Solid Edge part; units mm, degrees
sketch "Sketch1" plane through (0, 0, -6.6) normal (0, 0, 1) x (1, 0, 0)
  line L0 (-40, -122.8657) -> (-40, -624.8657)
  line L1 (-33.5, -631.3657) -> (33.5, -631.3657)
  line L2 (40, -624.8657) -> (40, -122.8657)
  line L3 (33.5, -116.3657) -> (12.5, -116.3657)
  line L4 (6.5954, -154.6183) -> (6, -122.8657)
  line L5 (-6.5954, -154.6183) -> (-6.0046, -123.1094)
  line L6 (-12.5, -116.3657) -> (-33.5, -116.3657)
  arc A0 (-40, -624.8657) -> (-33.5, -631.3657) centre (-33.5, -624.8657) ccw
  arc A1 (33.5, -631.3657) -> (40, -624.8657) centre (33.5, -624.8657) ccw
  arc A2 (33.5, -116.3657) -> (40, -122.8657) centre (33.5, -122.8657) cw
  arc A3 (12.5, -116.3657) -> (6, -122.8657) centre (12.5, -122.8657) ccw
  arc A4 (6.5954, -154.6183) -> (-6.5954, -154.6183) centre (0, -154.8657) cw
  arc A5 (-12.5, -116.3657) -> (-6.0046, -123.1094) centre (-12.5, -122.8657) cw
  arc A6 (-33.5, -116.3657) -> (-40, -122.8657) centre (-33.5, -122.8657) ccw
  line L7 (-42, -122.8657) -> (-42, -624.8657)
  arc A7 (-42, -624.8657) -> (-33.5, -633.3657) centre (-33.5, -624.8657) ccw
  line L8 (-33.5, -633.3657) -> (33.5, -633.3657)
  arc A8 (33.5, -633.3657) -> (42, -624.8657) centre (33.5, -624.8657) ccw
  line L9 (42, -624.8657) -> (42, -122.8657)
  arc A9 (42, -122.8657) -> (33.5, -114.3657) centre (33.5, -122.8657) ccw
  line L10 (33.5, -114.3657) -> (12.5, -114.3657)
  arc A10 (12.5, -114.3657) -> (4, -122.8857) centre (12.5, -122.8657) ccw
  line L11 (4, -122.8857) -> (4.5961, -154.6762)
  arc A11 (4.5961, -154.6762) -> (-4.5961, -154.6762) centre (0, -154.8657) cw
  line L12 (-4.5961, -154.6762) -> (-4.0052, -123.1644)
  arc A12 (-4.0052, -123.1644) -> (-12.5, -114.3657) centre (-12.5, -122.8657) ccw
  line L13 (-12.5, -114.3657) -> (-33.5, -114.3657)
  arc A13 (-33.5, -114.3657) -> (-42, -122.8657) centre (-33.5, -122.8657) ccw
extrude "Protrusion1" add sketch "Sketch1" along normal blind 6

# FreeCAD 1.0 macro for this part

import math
import FreeCAD as App
import Part
import Sketcher
from FreeCAD import Vector
Q = App.Units.Quantity

doc = App.newDocument("Part")
body = doc.addObject("PartDesign::Body", "Body")

sketch1 = doc.addObject("Sketcher::SketchObject", "Sketch")
body.addObject(sketch1)
sketch1.AttachmentSupport = (doc.XY_Plane, [""])
sketch1.MapMode = "FlatFace"
sketch1.AttachmentOffset = App.Placement(Vector(0, 0, -6.6), App.Rotation())
sketch1.addGeometry([
    Part.ArcOfCircle(Part.Circle(Vector(-33.5, -122.8657, 0), Vector(0, 0, 1), 8.5), math.radians(90), math.radians(180)),
    Part.LineSegment(Vector(-42, -122.8657, 0), Vector(-42, -624.8657, 0)),
    Part.ArcOfCircle(Part.Circle(Vector(-33.5, -624.8657, 0), Vector(0, 0, 1), 8.5), math.radians(180), math.radians(270)),
    Part.LineSegment(Vector(-33.5, -633.3657, 0), Vector(33.5, -633.3657, 0)),
    Part.ArcOfCircle(Part.Circle(Vector(33.5, -624.8657, 0), Vector(0, 0, 1), 8.5), math.radians(-90), math.radians(0)),
    Part.LineSegment(Vector(42, -624.8657, 0), Vector(42, -122.8657, 0)),
    Part.ArcOfCircle(Part.Circle(Vector(33.5, -122.8657, 0), Vector(0, 0, 1), 8.5), math.radians(0), math.radians(90)),
    Part.LineSegment(Vector(33.5, -114.3657, 0), Vector(12.5, -114.3657, 0)),
    Part.ArcOfCircle(Part.Circle(Vector(12.5, -122.8657, 0), Vector(0, 0, 1), 8.5), math.radians(90), math.radians(180.134813)),
    Part.LineSegment(Vector(4, -122.8857, 0), Vector(4.5961, -154.6762, 0)),
    Part.ArcOfCircle(Part.Circle(Vector(0, -154.8657, 0), Vector(0, 0, 1), 4.600005), math.radians(177.638997), math.radians(362.361003)),
    Part.LineSegment(Vector(-4.5961, -154.6762, 0), Vector(-4.0052, -123.1644, 0)),
    Part.ArcOfCircle(Part.Circle(Vector(-12.5, -122.8657, 0), Vector(0, 0, 1), 8.50005), math.radians(-2.013844), math.radians(90)),
    Part.LineSegment(Vector(-12.5, -114.3657, 0), Vector(-33.5, -114.3657, 0)),
    Part.LineSegment(Vector(-40, -624.8657, 0), Vector(-40, -122.8657, 0)),
    Part.ArcOfCircle(Part.Circle(Vector(-33.5, -122.8657, 0), Vector(0, 0, 1), 6.5), math.radians(90), math.radians(180)),
    Part.LineSegment(Vector(-33.5, -116.3657, 0), Vector(-12.5, -116.3657, 0)),
    Part.ArcOfCircle(Part.Circle(Vector(-12.5, -122.8657, 0), Vector(0, 0, 1), 6.5), math.radians(-2.148664), math.radians(90)),
    Part.LineSegment(Vector(-6.0046, -123.1094, 0), Vector(-6.5954, -154.6183, 0)),
    Part.ArcOfCircle(Part.Circle(Vector(0, -154.8657, 0), Vector(0, 0, 1), 6.600038), math.radians(177.851786), math.radians(362.148214)),
    Part.LineSegment(Vector(6.5954, -154.6183, 0), Vector(6, -122.8657, 0)),
    Part.ArcOfCircle(Part.Circle(Vector(12.5, -122.8657, 0), Vector(0, 0, 1), 6.5), math.radians(90), math.radians(180)),
    Part.LineSegment(Vector(12.5, -116.3657, 0), Vector(33.5, -116.3657, 0)),
    Part.ArcOfCircle(Part.Circle(Vector(33.5, -122.8657, 0), Vector(0, 0, 1), 6.5), math.radians(0), math.radians(90)),
    Part.LineSegment(Vector(40, -122.8657, 0), Vector(40, -624.8657, 0)),
    Part.ArcOfCircle(Part.Circle(Vector(33.5, -624.8657, 0), Vector(0, 0, 1), 6.5), math.radians(-90), math.radians(0)),
    Part.LineSegment(Vector(33.5, -631.3657, 0), Vector(-33.5, -631.3657, 0)),
    Part.ArcOfCircle(Part.Circle(Vector(-33.5, -624.8657, 0), Vector(0, 0, 1), 6.5), math.radians(180), math.radians(270)),
], False)
sketch1.addConstraint([
    Sketcher.Constraint("Tangent", 0, 2, 1, 1),
    Sketcher.Constraint("Tangent", 1, 2, 2, 1),
    Sketcher.Constraint("Tangent", 2, 2, 3, 1),
    Sketcher.Constraint("Tangent", 3, 2, 4, 1),
    Sketcher.Constraint("Tangent", 4, 2, 5, 1),
    Sketcher.Constraint("Tangent", 5, 2, 6, 1),
    Sketcher.Constraint("Tangent", 6, 2, 7, 1),
    Sketcher.Constraint("Tangent", 7, 2, 8, 1),
    Sketcher.Constraint("Coincident", 8, 2, 9, 1),
    Sketcher.Constraint("Coincident", 9, 2, 10, 2),
    Sketcher.Constraint("Coincident", 10, 1, 11, 1),
    Sketcher.Constraint("Coincident", 11, 2, 12, 1),
    Sketcher.Constraint("Tangent", 12, 2, 13, 1),
    Sketcher.Constraint("Tangent", 13, 2, 0, 1),
    Sketcher.Constraint("Tangent", 14, 2, 15, 2),
    Sketcher.Constraint("Tangent", 15, 1, 16, 1),
    Sketcher.Constraint("Tangent", 16, 2, 17, 2),
    Sketcher.Constraint("Coincident", 17, 1, 18, 1),
    Sketcher.Constraint("Coincident", 18, 2, 19, 1),
    Sketcher.Constraint("Coincident", 19, 2, 20, 1),
    Sketcher.Constraint("Coincident", 20, 2, 21, 2),
    Sketcher.Constraint("Tangent", 21, 1, 22, 1),
    Sketcher.Constraint("Tangent", 22, 2, 23, 2),
    Sketcher.Constraint("Tangent", 23, 1, 24, 1),
    Sketcher.Constraint("Tangent", 24, 2, 25, 2),
    Sketcher.Constraint("Tangent", 25, 1, 26, 1),
    Sketcher.Constraint("Tangent", 26, 2, 27, 2),
    Sketcher.Constraint("Tangent", 27, 1, 14, 1),
    Sketcher.Constraint("Vertical", 1),
    Sketcher.Constraint("Horizontal", 3),
    Sketcher.Constraint("Vertical", 5),
    Sketcher.Constraint("Horizontal", 7),
    Sketcher.Constraint("Horizontal", 13),
    Sketcher.Constraint("Vertical", 14),
    Sketcher.Constraint("Horizontal", 16),
    Sketcher.Constraint("Horizontal", 22),
    Sketcher.Constraint("Vertical", 24),
    Sketcher.Constraint("Horizontal", 26),
    Sketcher.Constraint("Coincident", 15, 3, 0, 3),
    Sketcher.Constraint("Coincident", 17, 3, 12, 3),
    Sketcher.Constraint("Coincident", 19, 3, 10, 3),
    Sketcher.Constraint("Coincident", 21, 3, 8, 3),
    Sketcher.Constraint("Coincident", 23, 3, 6, 3),
    Sketcher.Constraint("Coincident", 25, 3, 4, 3),
    Sketcher.Constraint("Coincident", 27, 3, 2, 3),
    Sketcher.Constraint("Equal", 0, 2),
    Sketcher.Constraint("Equal", 2, 4),
    Sketcher.Constraint("Equal", 4, 6),
    Sketcher.Constraint("Equal", 6, 8),
    Sketcher.Constraint("Equal", 8, 12),
    Sketcher.Constraint("Symmetric", 0, 3, 6, 3, -2),
    Sketcher.Constraint("Symmetric", 9, 2, 10, 1, -2),
    Sketcher.Constraint("Parallel", 11, 18),
    Sketcher.Constraint("Parallel", 9, 20),
    Sketcher.Constraint("Horizontal", 18, 2, 19, 2),
    Sketcher.Constraint("Horizontal", 14, 2, 20, 2),
    Sketcher.Constraint("Equal", 7, 13),
    Sketcher.Constraint("Radius", 0, Q("8.5 mm")),
    Sketcher.Constraint("Radius", 10, Q("4.6 mm")),
    Sketcher.Constraint("Radius", 15, Q("6.5 mm")),
    Sketcher.Constraint("Radius", 19, Q("6.6 mm")),
    Sketcher.Constraint("DistanceX", 3, 1, 3, 2, Q("67 mm")),
    Sketcher.Constraint("DistanceX", 7, 2, 7, 1, Q("21 mm")),
    Sketcher.Constraint("DistanceY", 1, 2, 1, 1, Q("502 mm")),
    Sketcher.Constraint("DistanceY", 10, 3, 8, 3, Q("32 mm")),
    Sketcher.Constraint("DistanceY", 8, 2, 8, 3, Q("0.02 mm")),
    Sketcher.Constraint("Distance", 9, Q("31.796 mm")),
    Sketcher.Constraint("DistanceY", 11, 2, 17, 1, Q("0.055 mm")),
    Sketcher.Constraint("DistanceY", 0, 3, -1, 1, Q("122.8657 mm")),
])
pad1 = doc.addObject("PartDesign::Pad", "Pad")
body.addObject(pad1)
pad1.Profile = sketch1
pad1.Length = 6

doc.recompute()
